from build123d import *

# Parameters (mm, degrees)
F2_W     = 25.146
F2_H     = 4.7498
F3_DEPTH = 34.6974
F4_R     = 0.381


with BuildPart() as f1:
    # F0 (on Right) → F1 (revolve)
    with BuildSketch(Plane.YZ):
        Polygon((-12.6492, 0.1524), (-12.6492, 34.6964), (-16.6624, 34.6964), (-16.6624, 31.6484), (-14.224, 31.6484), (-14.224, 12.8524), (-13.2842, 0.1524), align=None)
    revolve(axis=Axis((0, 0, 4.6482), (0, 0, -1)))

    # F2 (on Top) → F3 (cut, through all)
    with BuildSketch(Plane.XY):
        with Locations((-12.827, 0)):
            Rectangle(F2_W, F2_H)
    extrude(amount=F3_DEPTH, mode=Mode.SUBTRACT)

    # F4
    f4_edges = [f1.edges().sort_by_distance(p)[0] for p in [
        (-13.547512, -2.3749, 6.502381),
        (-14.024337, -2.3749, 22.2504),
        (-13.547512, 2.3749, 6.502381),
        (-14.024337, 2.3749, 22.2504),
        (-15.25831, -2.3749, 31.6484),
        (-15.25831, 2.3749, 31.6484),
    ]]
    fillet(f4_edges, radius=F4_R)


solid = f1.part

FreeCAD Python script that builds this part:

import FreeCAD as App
import Part
import Sketcher
Q = App.Units.Quantity


def edges_at(feature, points):
    """Names of the edges that pass closest to the given points."""
    edges = feature.Shape.Edges
    near = lambda p: min(range(len(edges)), key=lambda i: edges[i].distToShape(Part.Vertex(*p))[0])
    return sorted({f"Edge{near(p) + 1}" for p in points})

doc = App.newDocument("Part")
body = doc.addObject("PartDesign::Body", "Body")

# Sketch on YZ plane
sketch1 = body.newObject("Sketcher::SketchObject", "Sketch")
sketch1.AttachmentSupport = (doc.getObject("YZ_Plane"), [""])
sketch1.MapMode = "FlatFace"
sketch1.addGeometry(Part.LineSegment(App.Vector(-12.6, 0.2, 0), App.Vector(-12.6, 34.7, 0)), False)
sketch1.addGeometry(Part.LineSegment(App.Vector(-12.6, 34.7, 0), App.Vector(-16.7, 34.7, 0)), False)
sketch1.addGeometry(Part.LineSegment(App.Vector(-16.7, 34.7, 0), App.Vector(-16.7, 31.6, 0)), False)
sketch1.addGeometry(Part.LineSegment(App.Vector(-16.7, 31.6, 0), App.Vector(-14.2, 31.6, 0)), False)
sketch1.addGeometry(Part.LineSegment(App.Vector(-14.2, 31.6, 0), App.Vector(-14.2, 12.9, 0)), False)
sketch1.addGeometry(Part.LineSegment(App.Vector(-14.2, 12.9, 0), App.Vector(-13.3, 0.2, 0)), False)
sketch1.addGeometry(Part.LineSegment(App.Vector(-13.3, 0.2, 0), App.Vector(-12.6, 0.2, 0)), False)
sketch1.addConstraint(Sketcher.Constraint("Coincident", 0, 2, 1, 1))
sketch1.addConstraint(Sketcher.Constraint("Coincident", 1, 2, 2, 1))
sketch1.addConstraint(Sketcher.Constraint("Coincident", 2, 2, 3, 1))
sketch1.addConstraint(Sketcher.Constraint("Coincident", 3, 2, 4, 1))
sketch1.addConstraint(Sketcher.Constraint("Coincident", 4, 2, 5, 1))
sketch1.addConstraint(Sketcher.Constraint("Coincident", 5, 2, 6, 1))
sketch1.addConstraint(Sketcher.Constraint("Coincident", 6, 2, 0, 1))
sketch1.addConstraint(Sketcher.Constraint("Vertical", 0))
sketch1.addConstraint(Sketcher.Constraint("Horizontal", 1))
sketch1.addConstraint(Sketcher.Constraint("Vertical", 2))
sketch1.addConstraint(Sketcher.Constraint("Horizontal", 3))
sketch1.addConstraint(Sketcher.Constraint("Vertical", 4))
sketch1.addConstraint(Sketcher.Constraint("Horizontal", 6))
sketch1.addConstraint(Sketcher.Constraint("DistanceY", 0, 1, 0, 2, Q("1.36 in")))
sketch1.addConstraint(Sketcher.Constraint("DistanceY", 2, 2, 2, 1, Q("0.12 in")))
sketch1.addConstraint(Sketcher.Constraint("DistanceY", 4, 2, 4, 1, Q("0.74 in")))
sketch1.addConstraint(Sketcher.Constraint("DistanceX", 1, 2, 1, 1, Q("0.158 in")))
sketch1.addConstraint(Sketcher.Constraint("DistanceX", 3, 1, 3, 2, Q("0.096 in")))
sketch1.addConstraint(Sketcher.Constraint("DistanceX", 6, 1, 6, 2, Q("0.025 in")))
sketch1.addConstraint(Sketcher.Constraint("DistanceX", 3, 2, -1, 1, Q("0.56 in")))
sketch1.addConstraint(Sketcher.Constraint("DistanceY", -1, 1, 0, 2, Q("1.366 in")))
revolution = body.newObject("PartDesign::Revolution", "Revolution")
revolution.Profile = sketch1
revolution.ReferenceAxis = (sketch1, ["V_Axis"])
revolution.Angle = 360

# Sketch on XY plane
sketch2 = body.newObject("Sketcher::SketchObject", "Sketch001")
sketch2.AttachmentSupport = (doc.getObject("XY_Plane"), [""])
sketch2.MapMode = "FlatFace"
sketch2.addGeometry(Part.LineSegment(App.Vector(-25.4, 2.4, 0), App.Vector(-25.4, -2.4, 0)), False)
sketch2.addGeometry(Part.LineSegment(App.Vector(-25.4, -2.4, 0), App.Vector(-0.3, -2.4, 0)), False)
sketch2.addGeometry(Part.LineSegment(App.Vector(-0.3, -2.4, 0), App.Vector(-0.3, 2.4, 0)), False)
sketch2.addGeometry(Part.LineSegment(App.Vector(-0.3, 2.4, 0), App.Vector(-25.4, 2.4, 0)), False)
sketch2.addConstraint(Sketcher.Constraint("Coincident", 0, 2, 1, 1))
sketch2.addConstraint(Sketcher.Constraint("Coincident", 1, 2, 2, 1))
sketch2.addConstraint(Sketcher.Constraint("Coincident", 2, 2, 3, 1))
sketch2.addConstraint(Sketcher.Constraint("Coincident", 3, 2, 0, 1))
sketch2.addConstraint(Sketcher.Constraint("Vertical", 0))
sketch2.addConstraint(Sketcher.Constraint("Horizontal", 1))
sketch2.addConstraint(Sketcher.Constraint("Vertical", 2))
sketch2.addConstraint(Sketcher.Constraint("Horizontal", 3))
sketch2.addConstraint(Sketcher.Constraint("DistanceX", 0, 2, -1, 1, Q("1 in")))
sketch2.addConstraint(Sketcher.Constraint("DistanceX", 1, 1, 1, 2, Q("0.99 in")))
sketch2.addConstraint(Sketcher.Constraint("DistanceY", 0, 2, 0, 1, Q("0.187 in")))
sketch2.addConstraint(Sketcher.Constraint("DistanceY", 0, 2, -1, 1, Q("0.0935 in")))
pocket1 = body.newObject("PartDesign::Pocket", "Pocket")
pocket1.Profile = sketch2
pocket1.Type = "ThroughAll"
pocket1.Reversed = True
doc.recompute()

fillet = body.newObject("PartDesign::Fillet", "Fillet")
fillet.Base = (pocket1, edges_at(pocket1, [
    (-13.548, -2.375, 6.502),
    (-14.024, -2.375, 22.25),
    (-13.548, 2.375, 6.502),
    (-14.024, 2.375, 22.25),
    (-15.258, -2.375, 31.648),
    (-15.258, 2.375, 31.648),
]))
fillet.Radius = Q("0.015 in")

doc.recompute()
